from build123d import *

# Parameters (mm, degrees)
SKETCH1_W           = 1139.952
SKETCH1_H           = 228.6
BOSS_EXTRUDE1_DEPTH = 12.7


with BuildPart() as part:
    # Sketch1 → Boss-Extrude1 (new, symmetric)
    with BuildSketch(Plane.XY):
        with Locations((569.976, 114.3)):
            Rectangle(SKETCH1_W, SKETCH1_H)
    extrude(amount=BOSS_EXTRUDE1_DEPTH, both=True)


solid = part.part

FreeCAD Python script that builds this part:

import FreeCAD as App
import Part
import Sketcher
Q = App.Units.Quantity

doc = App.newDocument("Part")
body = doc.addObject("PartDesign::Body", "Body")

sketch1 = doc.addObject("Sketcher::SketchObject", "Sketch")
body.addObject(sketch1)
sketch1.AttachmentSupport = (doc.XY_Plane, [""])
sketch1.MapMode = "FlatFace"
sketch1.addGeometry([
    Part.LineSegment(App.Vector(0, 229, 0), App.Vector(0, 0, 0)),
    Part.LineSegment(App.Vector(0, 0, 0), App.Vector(1140, 0, 0)),
    Part.LineSegment(App.Vector(1140, 0, 0), App.Vector(1140, 229, 0)),
    Part.LineSegment(App.Vector(1140, 229, 0), App.Vector(0, 229, 0)),
], False)
sketch1.addConstraint([
    Sketcher.Constraint("Coincident", 0, 2, 1, 1),
    Sketcher.Constraint("Coincident", 1, 2, 2, 1),
    Sketcher.Constraint("Coincident", 2, 2, 3, 1),
    Sketcher.Constraint("Coincident", 3, 2, 0, 1),
    Sketcher.Constraint("Vertical", 0),
    Sketcher.Constraint("Horizontal", 1),
    Sketcher.Constraint("Vertical", 2),
    Sketcher.Constraint("Horizontal", 3),
    Sketcher.Constraint("Coincident", 0, 2, -1, 1),
    Sketcher.Constraint("DistanceY", 0, 2, 0, 1, Q("9 in")),
    Sketcher.Constraint("DistanceX", 1, 1, 1, 2, Q("44.88 in")),
])
pad1 = doc.addObject("PartDesign::Pad", "Pad")
body.addObject(pad1)
pad1.Profile = sketch1
pad1.Length = Q("1 in")
pad1.Midplane = True

doc.recompute()
